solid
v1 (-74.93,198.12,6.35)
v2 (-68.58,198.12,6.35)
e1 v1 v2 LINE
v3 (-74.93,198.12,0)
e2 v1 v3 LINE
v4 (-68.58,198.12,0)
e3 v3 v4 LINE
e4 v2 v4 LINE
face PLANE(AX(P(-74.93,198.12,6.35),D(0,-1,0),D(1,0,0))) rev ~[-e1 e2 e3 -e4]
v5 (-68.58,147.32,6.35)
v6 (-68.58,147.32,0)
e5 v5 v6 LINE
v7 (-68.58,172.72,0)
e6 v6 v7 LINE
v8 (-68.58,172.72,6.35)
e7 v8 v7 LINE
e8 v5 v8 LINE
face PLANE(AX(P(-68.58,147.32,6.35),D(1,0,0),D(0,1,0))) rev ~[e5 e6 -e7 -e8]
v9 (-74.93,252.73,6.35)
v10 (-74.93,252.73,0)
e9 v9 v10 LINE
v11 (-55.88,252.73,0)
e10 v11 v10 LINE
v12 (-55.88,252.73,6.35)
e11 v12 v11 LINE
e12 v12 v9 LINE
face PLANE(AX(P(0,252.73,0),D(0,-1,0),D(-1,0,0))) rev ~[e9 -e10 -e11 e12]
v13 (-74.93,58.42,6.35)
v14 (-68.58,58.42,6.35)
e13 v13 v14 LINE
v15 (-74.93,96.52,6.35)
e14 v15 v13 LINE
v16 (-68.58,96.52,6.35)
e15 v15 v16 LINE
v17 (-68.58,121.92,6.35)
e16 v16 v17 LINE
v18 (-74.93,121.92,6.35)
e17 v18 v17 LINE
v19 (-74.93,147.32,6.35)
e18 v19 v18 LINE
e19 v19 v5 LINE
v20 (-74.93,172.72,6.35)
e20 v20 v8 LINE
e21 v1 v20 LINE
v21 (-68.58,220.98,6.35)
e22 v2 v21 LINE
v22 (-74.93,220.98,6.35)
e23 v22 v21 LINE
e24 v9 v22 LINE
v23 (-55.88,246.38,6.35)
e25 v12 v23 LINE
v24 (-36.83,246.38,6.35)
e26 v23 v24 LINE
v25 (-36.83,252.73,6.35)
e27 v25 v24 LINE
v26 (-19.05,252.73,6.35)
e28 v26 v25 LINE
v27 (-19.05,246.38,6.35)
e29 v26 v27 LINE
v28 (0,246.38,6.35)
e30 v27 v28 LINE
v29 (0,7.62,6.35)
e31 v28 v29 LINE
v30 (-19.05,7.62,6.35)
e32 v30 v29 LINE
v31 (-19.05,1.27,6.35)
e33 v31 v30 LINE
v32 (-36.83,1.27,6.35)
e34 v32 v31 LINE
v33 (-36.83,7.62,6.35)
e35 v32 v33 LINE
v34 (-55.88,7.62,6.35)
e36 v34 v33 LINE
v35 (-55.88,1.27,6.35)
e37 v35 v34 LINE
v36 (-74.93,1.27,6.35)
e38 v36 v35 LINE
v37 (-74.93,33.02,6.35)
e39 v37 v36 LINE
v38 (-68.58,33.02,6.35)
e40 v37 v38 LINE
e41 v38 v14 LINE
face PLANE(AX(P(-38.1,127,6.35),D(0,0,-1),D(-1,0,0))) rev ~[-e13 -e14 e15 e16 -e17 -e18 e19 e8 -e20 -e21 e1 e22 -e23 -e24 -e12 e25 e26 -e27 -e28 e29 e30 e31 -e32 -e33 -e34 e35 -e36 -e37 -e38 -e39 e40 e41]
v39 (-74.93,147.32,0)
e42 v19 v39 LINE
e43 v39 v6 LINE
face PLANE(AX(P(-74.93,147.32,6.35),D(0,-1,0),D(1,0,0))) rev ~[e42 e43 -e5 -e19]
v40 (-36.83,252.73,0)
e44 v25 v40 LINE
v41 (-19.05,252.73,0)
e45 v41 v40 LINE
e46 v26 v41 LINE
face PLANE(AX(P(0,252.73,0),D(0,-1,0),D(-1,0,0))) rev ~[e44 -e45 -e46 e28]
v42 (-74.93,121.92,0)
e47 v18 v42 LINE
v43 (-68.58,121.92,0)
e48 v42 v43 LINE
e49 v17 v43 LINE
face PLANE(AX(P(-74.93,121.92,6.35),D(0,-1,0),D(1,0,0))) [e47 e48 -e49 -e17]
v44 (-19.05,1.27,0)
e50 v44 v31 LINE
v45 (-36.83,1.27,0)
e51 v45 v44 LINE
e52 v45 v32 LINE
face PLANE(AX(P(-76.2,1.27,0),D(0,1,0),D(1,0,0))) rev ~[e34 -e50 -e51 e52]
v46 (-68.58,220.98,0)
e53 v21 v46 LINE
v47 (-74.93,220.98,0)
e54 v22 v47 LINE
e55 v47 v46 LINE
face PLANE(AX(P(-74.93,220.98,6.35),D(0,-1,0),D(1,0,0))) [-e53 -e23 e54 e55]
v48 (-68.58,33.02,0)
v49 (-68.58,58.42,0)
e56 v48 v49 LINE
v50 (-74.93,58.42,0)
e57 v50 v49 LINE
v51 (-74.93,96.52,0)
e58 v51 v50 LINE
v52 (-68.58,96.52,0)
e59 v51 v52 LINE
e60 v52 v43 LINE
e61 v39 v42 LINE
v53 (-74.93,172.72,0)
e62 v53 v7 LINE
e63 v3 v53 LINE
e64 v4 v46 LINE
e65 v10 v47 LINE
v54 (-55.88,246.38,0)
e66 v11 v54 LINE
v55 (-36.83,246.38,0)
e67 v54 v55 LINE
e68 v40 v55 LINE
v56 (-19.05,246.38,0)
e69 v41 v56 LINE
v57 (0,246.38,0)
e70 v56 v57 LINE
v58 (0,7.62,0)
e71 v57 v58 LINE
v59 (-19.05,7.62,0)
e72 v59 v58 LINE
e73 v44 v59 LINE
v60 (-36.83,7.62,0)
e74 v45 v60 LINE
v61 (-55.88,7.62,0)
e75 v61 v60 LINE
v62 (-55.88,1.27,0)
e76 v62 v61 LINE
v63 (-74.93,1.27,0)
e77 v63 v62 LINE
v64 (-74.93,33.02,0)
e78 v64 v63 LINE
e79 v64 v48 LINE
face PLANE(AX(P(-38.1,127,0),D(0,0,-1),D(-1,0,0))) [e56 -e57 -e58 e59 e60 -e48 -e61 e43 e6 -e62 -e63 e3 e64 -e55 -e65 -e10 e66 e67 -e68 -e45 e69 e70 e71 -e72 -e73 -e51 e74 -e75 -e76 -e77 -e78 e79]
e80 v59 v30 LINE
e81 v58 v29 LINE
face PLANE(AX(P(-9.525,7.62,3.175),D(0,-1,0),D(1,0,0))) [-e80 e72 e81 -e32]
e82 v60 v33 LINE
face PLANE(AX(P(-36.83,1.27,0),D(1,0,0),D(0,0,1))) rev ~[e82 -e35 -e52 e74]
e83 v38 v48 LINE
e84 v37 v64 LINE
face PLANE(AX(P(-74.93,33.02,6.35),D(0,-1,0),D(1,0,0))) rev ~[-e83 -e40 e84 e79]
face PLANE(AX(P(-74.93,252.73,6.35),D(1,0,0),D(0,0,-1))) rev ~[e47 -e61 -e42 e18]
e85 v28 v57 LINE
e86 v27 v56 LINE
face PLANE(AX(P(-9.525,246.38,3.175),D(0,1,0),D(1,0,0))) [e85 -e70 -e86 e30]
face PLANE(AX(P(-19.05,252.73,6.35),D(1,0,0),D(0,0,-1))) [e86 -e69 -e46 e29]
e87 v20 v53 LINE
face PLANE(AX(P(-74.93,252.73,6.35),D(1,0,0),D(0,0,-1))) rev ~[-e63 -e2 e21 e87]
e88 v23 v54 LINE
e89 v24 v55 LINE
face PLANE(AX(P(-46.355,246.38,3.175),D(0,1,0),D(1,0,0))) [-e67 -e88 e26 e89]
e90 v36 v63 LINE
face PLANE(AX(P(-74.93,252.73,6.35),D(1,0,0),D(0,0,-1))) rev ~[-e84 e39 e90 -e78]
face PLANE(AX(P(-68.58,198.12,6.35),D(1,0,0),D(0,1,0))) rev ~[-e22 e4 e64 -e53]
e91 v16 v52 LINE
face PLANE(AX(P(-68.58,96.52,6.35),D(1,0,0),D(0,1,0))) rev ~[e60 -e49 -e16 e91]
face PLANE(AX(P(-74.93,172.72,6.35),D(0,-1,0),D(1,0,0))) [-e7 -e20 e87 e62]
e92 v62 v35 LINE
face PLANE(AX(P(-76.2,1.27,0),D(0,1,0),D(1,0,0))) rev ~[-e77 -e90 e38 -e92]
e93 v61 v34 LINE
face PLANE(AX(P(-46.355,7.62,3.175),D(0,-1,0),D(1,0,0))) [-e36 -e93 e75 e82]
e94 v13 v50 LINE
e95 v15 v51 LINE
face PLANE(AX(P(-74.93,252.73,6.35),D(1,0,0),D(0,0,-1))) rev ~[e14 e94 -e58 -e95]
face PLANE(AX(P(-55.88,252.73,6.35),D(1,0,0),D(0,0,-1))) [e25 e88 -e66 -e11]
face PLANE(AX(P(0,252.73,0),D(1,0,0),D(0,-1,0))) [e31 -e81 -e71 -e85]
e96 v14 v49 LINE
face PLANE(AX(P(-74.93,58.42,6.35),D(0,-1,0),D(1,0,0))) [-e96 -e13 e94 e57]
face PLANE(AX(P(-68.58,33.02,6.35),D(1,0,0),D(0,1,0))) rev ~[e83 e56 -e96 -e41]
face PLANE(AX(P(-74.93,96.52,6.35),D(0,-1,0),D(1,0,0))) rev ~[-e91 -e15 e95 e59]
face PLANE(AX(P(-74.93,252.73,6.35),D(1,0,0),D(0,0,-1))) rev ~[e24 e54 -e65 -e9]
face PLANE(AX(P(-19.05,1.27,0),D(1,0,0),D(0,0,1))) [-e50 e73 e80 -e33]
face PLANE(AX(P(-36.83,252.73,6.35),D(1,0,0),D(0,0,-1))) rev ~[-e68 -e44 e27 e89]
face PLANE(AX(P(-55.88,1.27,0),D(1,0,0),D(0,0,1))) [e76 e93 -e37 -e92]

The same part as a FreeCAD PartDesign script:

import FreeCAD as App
import Part
import Sketcher

V = App.Vector
Q = App.Units.Quantity


def add_polygon(sketch, points):
    """Adds a closed chain of lines whose ends are joined by coincident constraints."""
    first, n = sketch.GeometryCount, len(points)
    for a, b in zip(points, points[1:] + points[:1]):
        sketch.addGeometry(Part.LineSegment(App.Vector(*a, 0), App.Vector(*b, 0)), False)
    for i in range(n):
        sketch.addConstraint(Sketcher.Constraint("Coincident", first + i, 2, first + (i + 1) % n, 1))

doc = App.newDocument("Part")
body = doc.addObject("PartDesign::Body", "Body")

# Sketch on XY plane
sketch1 = body.newObject("Sketcher::SketchObject", "Sketch")
sketch1.AttachmentSupport = (doc.getObject("XY_Plane"), [""])
sketch1.MapMode = "FlatFace"
add_polygon(sketch1, [(-76.2, 1.27), (0, 1.27), (0, 252.73), (-76.2, 252.73)])  # lines 0-3
sketch1.addConstraint([
    Sketcher.Constraint("Horizontal", 0),
    Sketcher.Constraint("Vertical", 1),
    Sketcher.Constraint("Horizontal", 2),
    Sketcher.Constraint("Vertical", 3),
    Sketcher.Constraint("PointOnObject", 0, 2, -2),
    Sketcher.Constraint("DistanceX", 0, 1, 0, 2, Q("3 in")),
    Sketcher.Constraint("DistanceY", 1, 1, 1, 2, Q("9.9 in")),
    Sketcher.Constraint("DistanceY", -1, 1, 0, 2, Q("0.05 in")),
])
pad1 = body.newObject("PartDesign::Pad", "Pad")
pad1.Profile = sketch1
pad1.Length = Q("0.25 in")

# Sketch on XZ plane
sketch2 = body.newObject("Sketcher::SketchObject", "Sketch001")
sketch2.AttachmentSupport = (doc.getObject("XZ_Plane"), [""])
sketch2.MapMode = "FlatFace"
sketch2.AttachmentOffset = App.Placement(V(0, 0, -9.95 * 25.4), App.Rotation())
add_polygon(sketch2, [(-55.88, 0), (-55.88, 6.35), (-36.83, 6.35), (-36.83, 0)])  # lines 0-3
add_polygon(sketch2, [(-19.05, 0), (-19.05, 6.35), (0, 6.35), (0, 0)])  # lines 4-7
sketch2.addConstraint([
    Sketcher.Constraint("Vertical", 0),
    Sketcher.Constraint("Horizontal", 1),
    Sketcher.Constraint("Vertical", 2),
    Sketcher.Constraint("Horizontal", 3),
    Sketcher.Constraint("Vertical", 4),
    Sketcher.Constraint("Horizontal", 5),
    Sketcher.Constraint("Vertical", 6),
    Sketcher.Constraint("Horizontal", 7),
    Sketcher.Constraint("Coincident", 6, 2, -1, 1),
    Sketcher.Constraint("PointOnObject", 2, 2, -1),
    Sketcher.Constraint("Horizontal", 1, 2, 4, 2),
    Sketcher.Constraint("Equal", 3, 5),
    Sketcher.Constraint("DistanceX", 1, 1, 1, 2, Q("0.75 in")),
    Sketcher.Constraint("DistanceY", 0, 1, 0, 2, Q("0.25 in")),
    Sketcher.Constraint("DistanceX", 0, 2, -1, 1, Q("2.2 in")),
])
pocket1 = body.newObject("PartDesign::Pocket", "Pocket")
pocket1.Profile = sketch2
pocket1.Length = Q("0.25 in")
pocket1.Reversed = True

# Sketch on XZ plane
sketch3 = body.newObject("Sketcher::SketchObject", "Sketch002")
sketch3.AttachmentSupport = (doc.getObject("XZ_Plane"), [""])
sketch3.MapMode = "FlatFace"
sketch3.AttachmentOffset = App.Placement(V(0, 0, -9.95 * 25.4), App.Rotation())
add_polygon(sketch3, [(-76.2, 0), (-76.2, 6.35), (-74.93, 6.35), (-74.93, 0)])  # lines 0-3
sketch3.addConstraint([
    Sketcher.Constraint("Vertical", 0),
    Sketcher.Constraint("Horizontal", 1),
    Sketcher.Constraint("Vertical", 2),
    Sketcher.Constraint("Horizontal", 3),
    Sketcher.Constraint("PointOnObject", 2, 2, -1),
    Sketcher.Constraint("DistanceX", 0, 2, -1, 1, Q("3 in")),
    Sketcher.Constraint("DistanceX", 1, 1, 1, 2, Q("0.05 in")),
    Sketcher.Constraint("DistanceY", 0, 1, 0, 2, Q("0.25 in")),
])
pocket2 = body.newObject("PartDesign::Pocket", "Pocket001")
pocket2.Profile = sketch3
pocket2.Type = "ThroughAll"
pocket2.Reversed = True

# Sketch on XZ plane
sketch4 = body.newObject("Sketcher::SketchObject", "Sketch003")
sketch4.AttachmentSupport = (doc.getObject("XZ_Plane"), [""])
sketch4.MapMode = "FlatFace"
sketch4.AttachmentOffset = App.Placement(V(0, 0, -0.05 * 25.4), App.Rotation())
add_polygon(sketch4, [(-55.88, 6.35), (-55.88, 0), (-36.83, 0), (-36.83, 6.35)])  # lines 0-3
add_polygon(sketch4, [(-19.05, 6.35), (-19.05, 0), (0, 0), (0, 6.35)])  # lines 4-7
sketch4.addConstraint([
    Sketcher.Constraint("Vertical", 0),
    Sketcher.Constraint("Horizontal", 1),
    Sketcher.Constraint("Vertical", 2),
    Sketcher.Constraint("Horizontal", 3),
    Sketcher.Constraint("Vertical", 4),
    Sketcher.Constraint("Horizontal", 5),
    Sketcher.Constraint("Vertical", 6),
    Sketcher.Constraint("Horizontal", 7),
    Sketcher.Constraint("Coincident", 5, 2, -1, 1),
    Sketcher.Constraint("PointOnObject", 0, 2, -1),
    Sketcher.Constraint("Horizontal", 3, 2, 6, 2),
    Sketcher.Constraint("Equal", 3, 5),
    Sketcher.Constraint("DistanceX", 1, 1, 1, 2, Q("0.75 in")),
    Sketcher.Constraint("DistanceY", 0, 2, 0, 1, Q("0.25 in")),
    Sketcher.Constraint("DistanceX", 0, 2, -1, 1, Q("2.2 in")),
])
pocket3 = body.newObject("PartDesign::Pocket", "Pocket002")
pocket3.Profile = sketch4
pocket3.Length = Q("0.25 in")

# Sketch on XY plane
sketch5 = body.newObject("Sketcher::SketchObject", "Sketch004")
sketch5.AttachmentSupport = (doc.getObject("XY_Plane"), [""])
sketch5.MapMode = "FlatFace"
sketch5.AttachmentOffset = App.Placement(V(0, 0, 0.25 * 25.4), App.Rotation())
add_polygon(sketch5, [(-74.93, 58.42), (-74.93, 33.02), (-68.58, 33.02), (-68.58, 58.42)])  # lines 0-3
add_polygon(sketch5, [(-74.93, 121.92), (-74.93, 96.52), (-68.58, 96.52), (-68.58, 121.92)])  # lines 4-7
add_polygon(sketch5, [(-74.93, 172.72), (-74.93, 147.32), (-68.58, 147.32), (-68.58, 172.72)])  # lines 8-11
add_polygon(sketch5, [(-74.93, 220.98), (-74.93, 198.12), (-68.58, 198.12), (-68.58, 220.98)])  # lines 12-15
sketch5.addConstraint([
    Sketcher.Constraint("Vertical", 0),
    Sketcher.Constraint("Horizontal", 1),
    Sketcher.Constraint("Vertical", 2),
    Sketcher.Constraint("Horizontal", 3),
    Sketcher.Constraint("Vertical", 4),
    Sketcher.Constraint("Horizontal", 5),
    Sketcher.Constraint("Vertical", 6),
    Sketcher.Constraint("Horizontal", 7),
    Sketcher.Constraint("Vertical", 8),
    Sketcher.Constraint("Horizontal", 9),
    Sketcher.Constraint("Vertical", 10),
    Sketcher.Constraint("Horizontal", 11),
    Sketcher.Constraint("Vertical", 12),
    Sketcher.Constraint("Horizontal", 13),
    Sketcher.Constraint("Vertical", 14),
    Sketcher.Constraint("Horizontal", 15),
    Sketcher.Constraint("Vertical", 3, 2, 4, 2),
    Sketcher.Constraint("Vertical", 2, 2, 5, 2),
    Sketcher.Constraint("Vertical", 7, 2, 8, 2),
    Sketcher.Constraint("Vertical", 6, 2, 9, 2),
    Sketcher.Constraint("Vertical", 11, 2, 12, 2),
    Sketcher.Constraint("Vertical", 10, 2, 13, 2),
    Sketcher.Constraint("Equal", 2, 4),
    Sketcher.Constraint("Equal", 6, 8),
    Sketcher.Constraint("DistanceY", 0, 2, 0, 1, Q("1 in")),
    Sketcher.Constraint("DistanceY", 12, 2, 12, 1, Q("0.9 in")),
    Sketcher.Constraint("DistanceY", 7, 2, 8, 2, Q("1 in")),
    Sketcher.Constraint("DistanceY", 11, 2, 12, 2, Q("1 in")),
    Sketcher.Constraint("DistanceX", 1, 1, 1, 2, Q("0.25 in")),
    Sketcher.Constraint("DistanceY", -1, 1, 0, 2, Q("1.3 in")),
    Sketcher.Constraint("DistanceX", 1, 2, -1, 1, Q("2.7 in")),
    Sketcher.Constraint("DistanceY", -1, 1, 4, 2, Q("3.8 in")),
])
pocket4 = body.newObject("PartDesign::Pocket", "Pocket003")
pocket4.Profile = sketch5
pocket4.Length = Q("0.25 in")

doc.recompute()
